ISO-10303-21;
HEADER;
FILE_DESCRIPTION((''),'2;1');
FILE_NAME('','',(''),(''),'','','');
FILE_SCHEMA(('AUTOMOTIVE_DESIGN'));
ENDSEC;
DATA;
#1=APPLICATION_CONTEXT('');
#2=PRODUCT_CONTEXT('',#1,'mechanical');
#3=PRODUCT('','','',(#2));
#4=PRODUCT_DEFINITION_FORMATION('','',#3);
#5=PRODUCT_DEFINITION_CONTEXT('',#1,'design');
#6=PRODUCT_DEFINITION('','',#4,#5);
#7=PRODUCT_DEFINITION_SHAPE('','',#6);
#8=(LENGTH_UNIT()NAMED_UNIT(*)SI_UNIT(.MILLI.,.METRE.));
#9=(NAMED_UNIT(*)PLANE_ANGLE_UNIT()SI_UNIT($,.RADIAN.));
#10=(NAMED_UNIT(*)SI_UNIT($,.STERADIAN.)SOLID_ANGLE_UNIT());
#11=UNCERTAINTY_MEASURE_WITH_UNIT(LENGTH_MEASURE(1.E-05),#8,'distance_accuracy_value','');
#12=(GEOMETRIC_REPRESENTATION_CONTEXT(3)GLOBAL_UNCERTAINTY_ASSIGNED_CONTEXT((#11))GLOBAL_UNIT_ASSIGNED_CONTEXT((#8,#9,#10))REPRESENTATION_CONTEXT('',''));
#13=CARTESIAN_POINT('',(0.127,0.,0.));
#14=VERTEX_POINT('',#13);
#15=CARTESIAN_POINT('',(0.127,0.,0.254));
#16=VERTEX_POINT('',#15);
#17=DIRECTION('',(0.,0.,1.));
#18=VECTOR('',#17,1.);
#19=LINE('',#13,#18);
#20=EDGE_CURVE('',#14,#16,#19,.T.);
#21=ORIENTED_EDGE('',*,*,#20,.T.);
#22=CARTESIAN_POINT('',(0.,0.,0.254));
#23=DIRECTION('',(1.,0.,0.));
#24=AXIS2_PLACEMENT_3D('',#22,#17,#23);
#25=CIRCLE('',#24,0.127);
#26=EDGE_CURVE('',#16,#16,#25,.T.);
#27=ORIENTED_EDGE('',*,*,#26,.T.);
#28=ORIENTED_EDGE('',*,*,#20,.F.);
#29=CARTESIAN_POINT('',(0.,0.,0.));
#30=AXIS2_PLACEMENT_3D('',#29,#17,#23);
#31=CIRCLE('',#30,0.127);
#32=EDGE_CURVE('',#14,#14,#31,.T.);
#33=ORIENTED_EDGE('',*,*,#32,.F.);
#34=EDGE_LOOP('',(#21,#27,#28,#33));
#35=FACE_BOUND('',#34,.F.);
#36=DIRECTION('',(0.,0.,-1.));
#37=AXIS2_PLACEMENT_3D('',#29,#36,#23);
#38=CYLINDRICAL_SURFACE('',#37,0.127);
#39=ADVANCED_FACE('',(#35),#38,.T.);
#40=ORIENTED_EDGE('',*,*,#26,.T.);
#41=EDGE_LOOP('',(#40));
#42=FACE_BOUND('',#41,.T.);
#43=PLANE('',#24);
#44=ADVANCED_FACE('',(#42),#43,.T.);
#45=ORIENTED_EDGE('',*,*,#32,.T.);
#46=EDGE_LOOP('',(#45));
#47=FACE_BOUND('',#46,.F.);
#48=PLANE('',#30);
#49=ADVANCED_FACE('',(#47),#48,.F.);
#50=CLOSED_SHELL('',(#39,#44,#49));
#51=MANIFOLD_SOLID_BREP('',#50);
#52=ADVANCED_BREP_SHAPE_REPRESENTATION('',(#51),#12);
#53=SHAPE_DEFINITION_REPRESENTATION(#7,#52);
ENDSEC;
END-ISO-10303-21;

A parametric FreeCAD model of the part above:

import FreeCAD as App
import Part
import Sketcher
Q = App.Units.Quantity

doc = App.newDocument("Part")
params = doc.addObject("Spreadsheet::Sheet", "Params")
for row, (alias, value) in enumerate([
    ("sketch1_diameter", "0.01 in"),
    ("pad1_length", "0.01 in"),
], start=1):
    params.set(f"A{row}", alias)
    params.set(f"B{row}", "=" + value)
    params.setAlias(f"B{row}", alias)

body = doc.addObject("PartDesign::Body", "Body")

# Sketch on XY plane
sketch1 = doc.addObject("Sketcher::SketchObject", "Sketch")
body.addObject(sketch1)
sketch1.AttachmentSupport = (doc.XY_Plane, [""])
sketch1.MapMode = "FlatFace"
sketch1.addGeometry(Part.Circle(App.Vector(0, 0, 0), App.Vector(0, 0, 1), 0.127), False)
sketch1.addConstraint([
    Sketcher.Constraint("Coincident", 0, 3, -1, 1),
    Sketcher.Constraint("Diameter", 0, Q("0.01 in")),
])
sketch1.setExpression("Constraints[1]", "Params.sketch1_diameter")
pad1 = doc.addObject("PartDesign::Pad", "Pad")
body.addObject(pad1)
pad1.Profile = sketch1
pad1.setExpression("Length", "Params.pad1_length")

doc.recompute()
